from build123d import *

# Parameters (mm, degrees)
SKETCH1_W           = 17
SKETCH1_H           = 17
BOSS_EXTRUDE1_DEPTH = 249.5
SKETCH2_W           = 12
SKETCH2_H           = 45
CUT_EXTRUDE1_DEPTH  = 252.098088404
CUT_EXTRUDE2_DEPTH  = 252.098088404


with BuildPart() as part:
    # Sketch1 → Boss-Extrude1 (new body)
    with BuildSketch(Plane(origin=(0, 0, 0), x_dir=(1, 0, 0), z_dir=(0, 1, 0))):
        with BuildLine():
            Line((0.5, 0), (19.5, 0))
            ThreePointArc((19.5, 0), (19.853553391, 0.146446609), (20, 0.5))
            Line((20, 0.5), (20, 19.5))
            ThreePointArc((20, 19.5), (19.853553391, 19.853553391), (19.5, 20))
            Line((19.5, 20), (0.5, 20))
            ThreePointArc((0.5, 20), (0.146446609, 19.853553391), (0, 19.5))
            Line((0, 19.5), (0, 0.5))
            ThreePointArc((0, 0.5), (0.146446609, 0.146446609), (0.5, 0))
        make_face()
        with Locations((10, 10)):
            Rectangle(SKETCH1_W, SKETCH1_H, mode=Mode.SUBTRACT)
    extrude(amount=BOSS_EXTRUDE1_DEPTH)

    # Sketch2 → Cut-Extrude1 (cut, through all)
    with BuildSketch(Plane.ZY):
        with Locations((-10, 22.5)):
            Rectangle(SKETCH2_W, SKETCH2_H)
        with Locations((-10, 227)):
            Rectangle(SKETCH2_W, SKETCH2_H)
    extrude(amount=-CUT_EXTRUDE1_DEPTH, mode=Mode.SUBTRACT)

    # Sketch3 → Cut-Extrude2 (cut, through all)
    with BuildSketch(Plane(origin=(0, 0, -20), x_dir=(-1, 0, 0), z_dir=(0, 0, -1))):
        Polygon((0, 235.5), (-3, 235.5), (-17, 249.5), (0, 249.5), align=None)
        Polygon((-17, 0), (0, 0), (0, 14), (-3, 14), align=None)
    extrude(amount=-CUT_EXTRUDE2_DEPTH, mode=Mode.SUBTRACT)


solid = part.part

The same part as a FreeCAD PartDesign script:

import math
import FreeCAD as App
import Part
import Sketcher
from FreeCAD import Vector
Q = App.Units.Quantity


def add_polygon(sketch, points):
    """Adds a closed chain of lines whose ends are joined by coincident constraints."""
    first, n = sketch.GeometryCount, len(points)
    for a, b in zip(points, points[1:] + points[:1]):
        sketch.addGeometry(Part.LineSegment(App.Vector(*a, 0), App.Vector(*b, 0)), False)
    for i in range(n):
        sketch.addConstraint(Sketcher.Constraint("Coincident", first + i, 2, first + (i + 1) % n, 1))

doc = App.newDocument("Part")
body = doc.addObject("PartDesign::Body", "Body")

sketch1 = doc.addObject("Sketcher::SketchObject", "Sketch")
body.addObject(sketch1)
sketch1.AttachmentSupport = (doc.XZ_Plane, [""])
sketch1.MapMode = "FlatFace"
sketch1.addGeometry(Part.LineSegment(Vector(0.5, 0, 0), Vector(19.5, 0, 0)), False)
sketch1.addGeometry(Part.ArcOfCircle(Part.Circle(Vector(19.5, -0.5, 0), Vector(0, 0, 1), 0.5), math.radians(0), math.radians(90)), False)
sketch1.addGeometry(Part.LineSegment(Vector(20, -0.5, 0), Vector(20, -19.5, 0)), False)
sketch1.addGeometry(Part.ArcOfCircle(Part.Circle(Vector(19.5, -19.5, 0), Vector(0, 0, 1), 0.5), math.radians(-90), math.radians(0)), False)
sketch1.addGeometry(Part.LineSegment(Vector(19.5, -20, 0), Vector(0.5, -20, 0)), False)
sketch1.addGeometry(Part.ArcOfCircle(Part.Circle(Vector(0.5, -19.5, 0), Vector(0, 0, 1), 0.5), math.radians(180), math.radians(270)), False)
sketch1.addGeometry(Part.LineSegment(Vector(0, -19.5, 0), Vector(0, -0.5, 0)), False)
sketch1.addGeometry(Part.ArcOfCircle(Part.Circle(Vector(0.5, -0.5, 0), Vector(0, 0, 1), 0.5), math.radians(90), math.radians(180)), False)
add_polygon(sketch1, [(18.5, -1.5), (1.5, -1.5), (1.5, -18.5), (18.5, -18.5)])
sketch1.addConstraint([
    Sketcher.Constraint("Tangent", 0, 2, 1, 2),
    Sketcher.Constraint("Tangent", 1, 1, 2, 1),
    Sketcher.Constraint("Tangent", 2, 2, 3, 2),
    Sketcher.Constraint("Tangent", 3, 1, 4, 1),
    Sketcher.Constraint("Tangent", 4, 2, 5, 2),
    Sketcher.Constraint("Tangent", 5, 1, 6, 1),
    Sketcher.Constraint("Tangent", 6, 2, 7, 2),
    Sketcher.Constraint("Tangent", 7, 1, 0, 1),
    Sketcher.Constraint("Horizontal", 0),
    Sketcher.Constraint("Vertical", 2),
    Sketcher.Constraint("Horizontal", 4),
    Sketcher.Constraint("Vertical", 6),
    Sketcher.Constraint("Horizontal", 8),
    Sketcher.Constraint("Vertical", 9),
    Sketcher.Constraint("Horizontal", 10),
    Sketcher.Constraint("Vertical", 11),
    Sketcher.Constraint("Equal", 1, 3),
    Sketcher.Constraint("Equal", 3, 5),
    Sketcher.Constraint("Equal", 5, 7),
    Sketcher.Constraint("PointOnObject", 0, 2, -1),
    Sketcher.Constraint("PointOnObject", 5, 1, -2),
    Sketcher.Constraint("Equal", 4, 2),
    Sketcher.Constraint("Equal", 10, 9),
    Sketcher.Constraint("Radius", 1, Q("0.5 mm")),
    Sketcher.Constraint("DistanceX", 0, 1, 0, 2, Q("19 mm")),
    Sketcher.Constraint("DistanceX", 8, 2, 8, 1, Q("17 mm")),
    Sketcher.Constraint("DistanceX", 7, 3, 8, 2, Q("1 mm")),
    Sketcher.Constraint("DistanceY", 8, 2, 7, 3, Q("1 mm")),
])
pad1 = doc.addObject("PartDesign::Pad", "Pad")
body.addObject(pad1)
pad1.Profile = sketch1
pad1.Length = 249.5
pad1.Reversed = True

sketch2 = doc.addObject("Sketcher::SketchObject", "Sketch001")
body.addObject(sketch2)
sketch2.AttachmentSupport = (doc.YZ_Plane, [""])
sketch2.MapMode = "FlatFace"
add_polygon(sketch2, [(45, -16), (0, -16), (0, -4), (45, -4)])
add_polygon(sketch2, [(250, -16), (204, -16), (204, -4), (250, -4)])
sketch2.addConstraint([
    Sketcher.Constraint("Horizontal", 0),
    Sketcher.Constraint("Vertical", 1),
    Sketcher.Constraint("Horizontal", 2),
    Sketcher.Constraint("Vertical", 3),
    Sketcher.Constraint("Horizontal", 4),
    Sketcher.Constraint("Vertical", 5),
    Sketcher.Constraint("Horizontal", 6),
    Sketcher.Constraint("Vertical", 7),
    Sketcher.Constraint("PointOnObject", 0, 2, -2),
    Sketcher.Constraint("Horizontal", 3, 2, 4, 2),
    Sketcher.Constraint("Horizontal", 2, 2, 5, 2),
    Sketcher.Constraint("Equal", 2, 4),
    Sketcher.Constraint("DistanceX", 0, 2, 0, 1, Q("45 mm")),
    Sketcher.Constraint("DistanceY", 1, 1, 1, 2, Q("12 mm")),
    Sketcher.Constraint("DistanceY", 0, 2, -1, 1, Q("16 mm")),
    Sketcher.Constraint("DistanceX", -1, 1, 4, 2, Q("204.5 mm")),
])
pocket1 = doc.addObject("PartDesign::Pocket", "Pocket")
body.addObject(pocket1)
pocket1.Profile = sketch2
pocket1.Type = "ThroughAll"
pocket1.Reversed = True

sketch3 = doc.addObject("Sketcher::SketchObject", "Sketch002")
body.addObject(sketch3)
sketch3.AttachmentSupport = (doc.XY_Plane, [""])
sketch3.MapMode = "FlatFace"
sketch3.AttachmentOffset = App.Placement(Vector(0, 0, -20), App.Rotation())
add_polygon(sketch3, [(3, 235.5), (0, 235.5), (0, 249.5), (17, 249.5)])
add_polygon(sketch3, [(17, 0), (0, 0), (0, 14), (3, 14)])
sketch3.addConstraint([
    Sketcher.Constraint("Horizontal", 0),
    Sketcher.Constraint("Vertical", 1),
    Sketcher.Constraint("Horizontal", 2),
    Sketcher.Constraint("Horizontal", 4),
    Sketcher.Constraint("Vertical", 5),
    Sketcher.Constraint("Horizontal", 6),
    Sketcher.Constraint("Coincident", 4, 2, -1, 1),
    Sketcher.Constraint("PointOnObject", 0, 2, -2),
    Sketcher.Constraint("Perpendicular", 3, 7),
    Sketcher.Constraint("Vertical", 3, 2, 6, 2),
    Sketcher.Constraint("Vertical", 2, 2, 7, 2),
    Sketcher.Constraint("Equal", 1, 5),
    Sketcher.Constraint("DistanceX", 0, 2, 0, 1, Q("3 mm")),
    Sketcher.Constraint("DistanceX", 2, 1, 2, 2, Q("17 mm")),
    Sketcher.Constraint("DistanceY", -1, 1, 0, 2, Q("235.5 mm")),
])
pocket2 = doc.addObject("PartDesign::Pocket", "Pocket001")
body.addObject(pocket2)
pocket2.Profile = sketch3
pocket2.Type = "ThroughAll"
pocket2.Reversed = True

doc.recompute()
